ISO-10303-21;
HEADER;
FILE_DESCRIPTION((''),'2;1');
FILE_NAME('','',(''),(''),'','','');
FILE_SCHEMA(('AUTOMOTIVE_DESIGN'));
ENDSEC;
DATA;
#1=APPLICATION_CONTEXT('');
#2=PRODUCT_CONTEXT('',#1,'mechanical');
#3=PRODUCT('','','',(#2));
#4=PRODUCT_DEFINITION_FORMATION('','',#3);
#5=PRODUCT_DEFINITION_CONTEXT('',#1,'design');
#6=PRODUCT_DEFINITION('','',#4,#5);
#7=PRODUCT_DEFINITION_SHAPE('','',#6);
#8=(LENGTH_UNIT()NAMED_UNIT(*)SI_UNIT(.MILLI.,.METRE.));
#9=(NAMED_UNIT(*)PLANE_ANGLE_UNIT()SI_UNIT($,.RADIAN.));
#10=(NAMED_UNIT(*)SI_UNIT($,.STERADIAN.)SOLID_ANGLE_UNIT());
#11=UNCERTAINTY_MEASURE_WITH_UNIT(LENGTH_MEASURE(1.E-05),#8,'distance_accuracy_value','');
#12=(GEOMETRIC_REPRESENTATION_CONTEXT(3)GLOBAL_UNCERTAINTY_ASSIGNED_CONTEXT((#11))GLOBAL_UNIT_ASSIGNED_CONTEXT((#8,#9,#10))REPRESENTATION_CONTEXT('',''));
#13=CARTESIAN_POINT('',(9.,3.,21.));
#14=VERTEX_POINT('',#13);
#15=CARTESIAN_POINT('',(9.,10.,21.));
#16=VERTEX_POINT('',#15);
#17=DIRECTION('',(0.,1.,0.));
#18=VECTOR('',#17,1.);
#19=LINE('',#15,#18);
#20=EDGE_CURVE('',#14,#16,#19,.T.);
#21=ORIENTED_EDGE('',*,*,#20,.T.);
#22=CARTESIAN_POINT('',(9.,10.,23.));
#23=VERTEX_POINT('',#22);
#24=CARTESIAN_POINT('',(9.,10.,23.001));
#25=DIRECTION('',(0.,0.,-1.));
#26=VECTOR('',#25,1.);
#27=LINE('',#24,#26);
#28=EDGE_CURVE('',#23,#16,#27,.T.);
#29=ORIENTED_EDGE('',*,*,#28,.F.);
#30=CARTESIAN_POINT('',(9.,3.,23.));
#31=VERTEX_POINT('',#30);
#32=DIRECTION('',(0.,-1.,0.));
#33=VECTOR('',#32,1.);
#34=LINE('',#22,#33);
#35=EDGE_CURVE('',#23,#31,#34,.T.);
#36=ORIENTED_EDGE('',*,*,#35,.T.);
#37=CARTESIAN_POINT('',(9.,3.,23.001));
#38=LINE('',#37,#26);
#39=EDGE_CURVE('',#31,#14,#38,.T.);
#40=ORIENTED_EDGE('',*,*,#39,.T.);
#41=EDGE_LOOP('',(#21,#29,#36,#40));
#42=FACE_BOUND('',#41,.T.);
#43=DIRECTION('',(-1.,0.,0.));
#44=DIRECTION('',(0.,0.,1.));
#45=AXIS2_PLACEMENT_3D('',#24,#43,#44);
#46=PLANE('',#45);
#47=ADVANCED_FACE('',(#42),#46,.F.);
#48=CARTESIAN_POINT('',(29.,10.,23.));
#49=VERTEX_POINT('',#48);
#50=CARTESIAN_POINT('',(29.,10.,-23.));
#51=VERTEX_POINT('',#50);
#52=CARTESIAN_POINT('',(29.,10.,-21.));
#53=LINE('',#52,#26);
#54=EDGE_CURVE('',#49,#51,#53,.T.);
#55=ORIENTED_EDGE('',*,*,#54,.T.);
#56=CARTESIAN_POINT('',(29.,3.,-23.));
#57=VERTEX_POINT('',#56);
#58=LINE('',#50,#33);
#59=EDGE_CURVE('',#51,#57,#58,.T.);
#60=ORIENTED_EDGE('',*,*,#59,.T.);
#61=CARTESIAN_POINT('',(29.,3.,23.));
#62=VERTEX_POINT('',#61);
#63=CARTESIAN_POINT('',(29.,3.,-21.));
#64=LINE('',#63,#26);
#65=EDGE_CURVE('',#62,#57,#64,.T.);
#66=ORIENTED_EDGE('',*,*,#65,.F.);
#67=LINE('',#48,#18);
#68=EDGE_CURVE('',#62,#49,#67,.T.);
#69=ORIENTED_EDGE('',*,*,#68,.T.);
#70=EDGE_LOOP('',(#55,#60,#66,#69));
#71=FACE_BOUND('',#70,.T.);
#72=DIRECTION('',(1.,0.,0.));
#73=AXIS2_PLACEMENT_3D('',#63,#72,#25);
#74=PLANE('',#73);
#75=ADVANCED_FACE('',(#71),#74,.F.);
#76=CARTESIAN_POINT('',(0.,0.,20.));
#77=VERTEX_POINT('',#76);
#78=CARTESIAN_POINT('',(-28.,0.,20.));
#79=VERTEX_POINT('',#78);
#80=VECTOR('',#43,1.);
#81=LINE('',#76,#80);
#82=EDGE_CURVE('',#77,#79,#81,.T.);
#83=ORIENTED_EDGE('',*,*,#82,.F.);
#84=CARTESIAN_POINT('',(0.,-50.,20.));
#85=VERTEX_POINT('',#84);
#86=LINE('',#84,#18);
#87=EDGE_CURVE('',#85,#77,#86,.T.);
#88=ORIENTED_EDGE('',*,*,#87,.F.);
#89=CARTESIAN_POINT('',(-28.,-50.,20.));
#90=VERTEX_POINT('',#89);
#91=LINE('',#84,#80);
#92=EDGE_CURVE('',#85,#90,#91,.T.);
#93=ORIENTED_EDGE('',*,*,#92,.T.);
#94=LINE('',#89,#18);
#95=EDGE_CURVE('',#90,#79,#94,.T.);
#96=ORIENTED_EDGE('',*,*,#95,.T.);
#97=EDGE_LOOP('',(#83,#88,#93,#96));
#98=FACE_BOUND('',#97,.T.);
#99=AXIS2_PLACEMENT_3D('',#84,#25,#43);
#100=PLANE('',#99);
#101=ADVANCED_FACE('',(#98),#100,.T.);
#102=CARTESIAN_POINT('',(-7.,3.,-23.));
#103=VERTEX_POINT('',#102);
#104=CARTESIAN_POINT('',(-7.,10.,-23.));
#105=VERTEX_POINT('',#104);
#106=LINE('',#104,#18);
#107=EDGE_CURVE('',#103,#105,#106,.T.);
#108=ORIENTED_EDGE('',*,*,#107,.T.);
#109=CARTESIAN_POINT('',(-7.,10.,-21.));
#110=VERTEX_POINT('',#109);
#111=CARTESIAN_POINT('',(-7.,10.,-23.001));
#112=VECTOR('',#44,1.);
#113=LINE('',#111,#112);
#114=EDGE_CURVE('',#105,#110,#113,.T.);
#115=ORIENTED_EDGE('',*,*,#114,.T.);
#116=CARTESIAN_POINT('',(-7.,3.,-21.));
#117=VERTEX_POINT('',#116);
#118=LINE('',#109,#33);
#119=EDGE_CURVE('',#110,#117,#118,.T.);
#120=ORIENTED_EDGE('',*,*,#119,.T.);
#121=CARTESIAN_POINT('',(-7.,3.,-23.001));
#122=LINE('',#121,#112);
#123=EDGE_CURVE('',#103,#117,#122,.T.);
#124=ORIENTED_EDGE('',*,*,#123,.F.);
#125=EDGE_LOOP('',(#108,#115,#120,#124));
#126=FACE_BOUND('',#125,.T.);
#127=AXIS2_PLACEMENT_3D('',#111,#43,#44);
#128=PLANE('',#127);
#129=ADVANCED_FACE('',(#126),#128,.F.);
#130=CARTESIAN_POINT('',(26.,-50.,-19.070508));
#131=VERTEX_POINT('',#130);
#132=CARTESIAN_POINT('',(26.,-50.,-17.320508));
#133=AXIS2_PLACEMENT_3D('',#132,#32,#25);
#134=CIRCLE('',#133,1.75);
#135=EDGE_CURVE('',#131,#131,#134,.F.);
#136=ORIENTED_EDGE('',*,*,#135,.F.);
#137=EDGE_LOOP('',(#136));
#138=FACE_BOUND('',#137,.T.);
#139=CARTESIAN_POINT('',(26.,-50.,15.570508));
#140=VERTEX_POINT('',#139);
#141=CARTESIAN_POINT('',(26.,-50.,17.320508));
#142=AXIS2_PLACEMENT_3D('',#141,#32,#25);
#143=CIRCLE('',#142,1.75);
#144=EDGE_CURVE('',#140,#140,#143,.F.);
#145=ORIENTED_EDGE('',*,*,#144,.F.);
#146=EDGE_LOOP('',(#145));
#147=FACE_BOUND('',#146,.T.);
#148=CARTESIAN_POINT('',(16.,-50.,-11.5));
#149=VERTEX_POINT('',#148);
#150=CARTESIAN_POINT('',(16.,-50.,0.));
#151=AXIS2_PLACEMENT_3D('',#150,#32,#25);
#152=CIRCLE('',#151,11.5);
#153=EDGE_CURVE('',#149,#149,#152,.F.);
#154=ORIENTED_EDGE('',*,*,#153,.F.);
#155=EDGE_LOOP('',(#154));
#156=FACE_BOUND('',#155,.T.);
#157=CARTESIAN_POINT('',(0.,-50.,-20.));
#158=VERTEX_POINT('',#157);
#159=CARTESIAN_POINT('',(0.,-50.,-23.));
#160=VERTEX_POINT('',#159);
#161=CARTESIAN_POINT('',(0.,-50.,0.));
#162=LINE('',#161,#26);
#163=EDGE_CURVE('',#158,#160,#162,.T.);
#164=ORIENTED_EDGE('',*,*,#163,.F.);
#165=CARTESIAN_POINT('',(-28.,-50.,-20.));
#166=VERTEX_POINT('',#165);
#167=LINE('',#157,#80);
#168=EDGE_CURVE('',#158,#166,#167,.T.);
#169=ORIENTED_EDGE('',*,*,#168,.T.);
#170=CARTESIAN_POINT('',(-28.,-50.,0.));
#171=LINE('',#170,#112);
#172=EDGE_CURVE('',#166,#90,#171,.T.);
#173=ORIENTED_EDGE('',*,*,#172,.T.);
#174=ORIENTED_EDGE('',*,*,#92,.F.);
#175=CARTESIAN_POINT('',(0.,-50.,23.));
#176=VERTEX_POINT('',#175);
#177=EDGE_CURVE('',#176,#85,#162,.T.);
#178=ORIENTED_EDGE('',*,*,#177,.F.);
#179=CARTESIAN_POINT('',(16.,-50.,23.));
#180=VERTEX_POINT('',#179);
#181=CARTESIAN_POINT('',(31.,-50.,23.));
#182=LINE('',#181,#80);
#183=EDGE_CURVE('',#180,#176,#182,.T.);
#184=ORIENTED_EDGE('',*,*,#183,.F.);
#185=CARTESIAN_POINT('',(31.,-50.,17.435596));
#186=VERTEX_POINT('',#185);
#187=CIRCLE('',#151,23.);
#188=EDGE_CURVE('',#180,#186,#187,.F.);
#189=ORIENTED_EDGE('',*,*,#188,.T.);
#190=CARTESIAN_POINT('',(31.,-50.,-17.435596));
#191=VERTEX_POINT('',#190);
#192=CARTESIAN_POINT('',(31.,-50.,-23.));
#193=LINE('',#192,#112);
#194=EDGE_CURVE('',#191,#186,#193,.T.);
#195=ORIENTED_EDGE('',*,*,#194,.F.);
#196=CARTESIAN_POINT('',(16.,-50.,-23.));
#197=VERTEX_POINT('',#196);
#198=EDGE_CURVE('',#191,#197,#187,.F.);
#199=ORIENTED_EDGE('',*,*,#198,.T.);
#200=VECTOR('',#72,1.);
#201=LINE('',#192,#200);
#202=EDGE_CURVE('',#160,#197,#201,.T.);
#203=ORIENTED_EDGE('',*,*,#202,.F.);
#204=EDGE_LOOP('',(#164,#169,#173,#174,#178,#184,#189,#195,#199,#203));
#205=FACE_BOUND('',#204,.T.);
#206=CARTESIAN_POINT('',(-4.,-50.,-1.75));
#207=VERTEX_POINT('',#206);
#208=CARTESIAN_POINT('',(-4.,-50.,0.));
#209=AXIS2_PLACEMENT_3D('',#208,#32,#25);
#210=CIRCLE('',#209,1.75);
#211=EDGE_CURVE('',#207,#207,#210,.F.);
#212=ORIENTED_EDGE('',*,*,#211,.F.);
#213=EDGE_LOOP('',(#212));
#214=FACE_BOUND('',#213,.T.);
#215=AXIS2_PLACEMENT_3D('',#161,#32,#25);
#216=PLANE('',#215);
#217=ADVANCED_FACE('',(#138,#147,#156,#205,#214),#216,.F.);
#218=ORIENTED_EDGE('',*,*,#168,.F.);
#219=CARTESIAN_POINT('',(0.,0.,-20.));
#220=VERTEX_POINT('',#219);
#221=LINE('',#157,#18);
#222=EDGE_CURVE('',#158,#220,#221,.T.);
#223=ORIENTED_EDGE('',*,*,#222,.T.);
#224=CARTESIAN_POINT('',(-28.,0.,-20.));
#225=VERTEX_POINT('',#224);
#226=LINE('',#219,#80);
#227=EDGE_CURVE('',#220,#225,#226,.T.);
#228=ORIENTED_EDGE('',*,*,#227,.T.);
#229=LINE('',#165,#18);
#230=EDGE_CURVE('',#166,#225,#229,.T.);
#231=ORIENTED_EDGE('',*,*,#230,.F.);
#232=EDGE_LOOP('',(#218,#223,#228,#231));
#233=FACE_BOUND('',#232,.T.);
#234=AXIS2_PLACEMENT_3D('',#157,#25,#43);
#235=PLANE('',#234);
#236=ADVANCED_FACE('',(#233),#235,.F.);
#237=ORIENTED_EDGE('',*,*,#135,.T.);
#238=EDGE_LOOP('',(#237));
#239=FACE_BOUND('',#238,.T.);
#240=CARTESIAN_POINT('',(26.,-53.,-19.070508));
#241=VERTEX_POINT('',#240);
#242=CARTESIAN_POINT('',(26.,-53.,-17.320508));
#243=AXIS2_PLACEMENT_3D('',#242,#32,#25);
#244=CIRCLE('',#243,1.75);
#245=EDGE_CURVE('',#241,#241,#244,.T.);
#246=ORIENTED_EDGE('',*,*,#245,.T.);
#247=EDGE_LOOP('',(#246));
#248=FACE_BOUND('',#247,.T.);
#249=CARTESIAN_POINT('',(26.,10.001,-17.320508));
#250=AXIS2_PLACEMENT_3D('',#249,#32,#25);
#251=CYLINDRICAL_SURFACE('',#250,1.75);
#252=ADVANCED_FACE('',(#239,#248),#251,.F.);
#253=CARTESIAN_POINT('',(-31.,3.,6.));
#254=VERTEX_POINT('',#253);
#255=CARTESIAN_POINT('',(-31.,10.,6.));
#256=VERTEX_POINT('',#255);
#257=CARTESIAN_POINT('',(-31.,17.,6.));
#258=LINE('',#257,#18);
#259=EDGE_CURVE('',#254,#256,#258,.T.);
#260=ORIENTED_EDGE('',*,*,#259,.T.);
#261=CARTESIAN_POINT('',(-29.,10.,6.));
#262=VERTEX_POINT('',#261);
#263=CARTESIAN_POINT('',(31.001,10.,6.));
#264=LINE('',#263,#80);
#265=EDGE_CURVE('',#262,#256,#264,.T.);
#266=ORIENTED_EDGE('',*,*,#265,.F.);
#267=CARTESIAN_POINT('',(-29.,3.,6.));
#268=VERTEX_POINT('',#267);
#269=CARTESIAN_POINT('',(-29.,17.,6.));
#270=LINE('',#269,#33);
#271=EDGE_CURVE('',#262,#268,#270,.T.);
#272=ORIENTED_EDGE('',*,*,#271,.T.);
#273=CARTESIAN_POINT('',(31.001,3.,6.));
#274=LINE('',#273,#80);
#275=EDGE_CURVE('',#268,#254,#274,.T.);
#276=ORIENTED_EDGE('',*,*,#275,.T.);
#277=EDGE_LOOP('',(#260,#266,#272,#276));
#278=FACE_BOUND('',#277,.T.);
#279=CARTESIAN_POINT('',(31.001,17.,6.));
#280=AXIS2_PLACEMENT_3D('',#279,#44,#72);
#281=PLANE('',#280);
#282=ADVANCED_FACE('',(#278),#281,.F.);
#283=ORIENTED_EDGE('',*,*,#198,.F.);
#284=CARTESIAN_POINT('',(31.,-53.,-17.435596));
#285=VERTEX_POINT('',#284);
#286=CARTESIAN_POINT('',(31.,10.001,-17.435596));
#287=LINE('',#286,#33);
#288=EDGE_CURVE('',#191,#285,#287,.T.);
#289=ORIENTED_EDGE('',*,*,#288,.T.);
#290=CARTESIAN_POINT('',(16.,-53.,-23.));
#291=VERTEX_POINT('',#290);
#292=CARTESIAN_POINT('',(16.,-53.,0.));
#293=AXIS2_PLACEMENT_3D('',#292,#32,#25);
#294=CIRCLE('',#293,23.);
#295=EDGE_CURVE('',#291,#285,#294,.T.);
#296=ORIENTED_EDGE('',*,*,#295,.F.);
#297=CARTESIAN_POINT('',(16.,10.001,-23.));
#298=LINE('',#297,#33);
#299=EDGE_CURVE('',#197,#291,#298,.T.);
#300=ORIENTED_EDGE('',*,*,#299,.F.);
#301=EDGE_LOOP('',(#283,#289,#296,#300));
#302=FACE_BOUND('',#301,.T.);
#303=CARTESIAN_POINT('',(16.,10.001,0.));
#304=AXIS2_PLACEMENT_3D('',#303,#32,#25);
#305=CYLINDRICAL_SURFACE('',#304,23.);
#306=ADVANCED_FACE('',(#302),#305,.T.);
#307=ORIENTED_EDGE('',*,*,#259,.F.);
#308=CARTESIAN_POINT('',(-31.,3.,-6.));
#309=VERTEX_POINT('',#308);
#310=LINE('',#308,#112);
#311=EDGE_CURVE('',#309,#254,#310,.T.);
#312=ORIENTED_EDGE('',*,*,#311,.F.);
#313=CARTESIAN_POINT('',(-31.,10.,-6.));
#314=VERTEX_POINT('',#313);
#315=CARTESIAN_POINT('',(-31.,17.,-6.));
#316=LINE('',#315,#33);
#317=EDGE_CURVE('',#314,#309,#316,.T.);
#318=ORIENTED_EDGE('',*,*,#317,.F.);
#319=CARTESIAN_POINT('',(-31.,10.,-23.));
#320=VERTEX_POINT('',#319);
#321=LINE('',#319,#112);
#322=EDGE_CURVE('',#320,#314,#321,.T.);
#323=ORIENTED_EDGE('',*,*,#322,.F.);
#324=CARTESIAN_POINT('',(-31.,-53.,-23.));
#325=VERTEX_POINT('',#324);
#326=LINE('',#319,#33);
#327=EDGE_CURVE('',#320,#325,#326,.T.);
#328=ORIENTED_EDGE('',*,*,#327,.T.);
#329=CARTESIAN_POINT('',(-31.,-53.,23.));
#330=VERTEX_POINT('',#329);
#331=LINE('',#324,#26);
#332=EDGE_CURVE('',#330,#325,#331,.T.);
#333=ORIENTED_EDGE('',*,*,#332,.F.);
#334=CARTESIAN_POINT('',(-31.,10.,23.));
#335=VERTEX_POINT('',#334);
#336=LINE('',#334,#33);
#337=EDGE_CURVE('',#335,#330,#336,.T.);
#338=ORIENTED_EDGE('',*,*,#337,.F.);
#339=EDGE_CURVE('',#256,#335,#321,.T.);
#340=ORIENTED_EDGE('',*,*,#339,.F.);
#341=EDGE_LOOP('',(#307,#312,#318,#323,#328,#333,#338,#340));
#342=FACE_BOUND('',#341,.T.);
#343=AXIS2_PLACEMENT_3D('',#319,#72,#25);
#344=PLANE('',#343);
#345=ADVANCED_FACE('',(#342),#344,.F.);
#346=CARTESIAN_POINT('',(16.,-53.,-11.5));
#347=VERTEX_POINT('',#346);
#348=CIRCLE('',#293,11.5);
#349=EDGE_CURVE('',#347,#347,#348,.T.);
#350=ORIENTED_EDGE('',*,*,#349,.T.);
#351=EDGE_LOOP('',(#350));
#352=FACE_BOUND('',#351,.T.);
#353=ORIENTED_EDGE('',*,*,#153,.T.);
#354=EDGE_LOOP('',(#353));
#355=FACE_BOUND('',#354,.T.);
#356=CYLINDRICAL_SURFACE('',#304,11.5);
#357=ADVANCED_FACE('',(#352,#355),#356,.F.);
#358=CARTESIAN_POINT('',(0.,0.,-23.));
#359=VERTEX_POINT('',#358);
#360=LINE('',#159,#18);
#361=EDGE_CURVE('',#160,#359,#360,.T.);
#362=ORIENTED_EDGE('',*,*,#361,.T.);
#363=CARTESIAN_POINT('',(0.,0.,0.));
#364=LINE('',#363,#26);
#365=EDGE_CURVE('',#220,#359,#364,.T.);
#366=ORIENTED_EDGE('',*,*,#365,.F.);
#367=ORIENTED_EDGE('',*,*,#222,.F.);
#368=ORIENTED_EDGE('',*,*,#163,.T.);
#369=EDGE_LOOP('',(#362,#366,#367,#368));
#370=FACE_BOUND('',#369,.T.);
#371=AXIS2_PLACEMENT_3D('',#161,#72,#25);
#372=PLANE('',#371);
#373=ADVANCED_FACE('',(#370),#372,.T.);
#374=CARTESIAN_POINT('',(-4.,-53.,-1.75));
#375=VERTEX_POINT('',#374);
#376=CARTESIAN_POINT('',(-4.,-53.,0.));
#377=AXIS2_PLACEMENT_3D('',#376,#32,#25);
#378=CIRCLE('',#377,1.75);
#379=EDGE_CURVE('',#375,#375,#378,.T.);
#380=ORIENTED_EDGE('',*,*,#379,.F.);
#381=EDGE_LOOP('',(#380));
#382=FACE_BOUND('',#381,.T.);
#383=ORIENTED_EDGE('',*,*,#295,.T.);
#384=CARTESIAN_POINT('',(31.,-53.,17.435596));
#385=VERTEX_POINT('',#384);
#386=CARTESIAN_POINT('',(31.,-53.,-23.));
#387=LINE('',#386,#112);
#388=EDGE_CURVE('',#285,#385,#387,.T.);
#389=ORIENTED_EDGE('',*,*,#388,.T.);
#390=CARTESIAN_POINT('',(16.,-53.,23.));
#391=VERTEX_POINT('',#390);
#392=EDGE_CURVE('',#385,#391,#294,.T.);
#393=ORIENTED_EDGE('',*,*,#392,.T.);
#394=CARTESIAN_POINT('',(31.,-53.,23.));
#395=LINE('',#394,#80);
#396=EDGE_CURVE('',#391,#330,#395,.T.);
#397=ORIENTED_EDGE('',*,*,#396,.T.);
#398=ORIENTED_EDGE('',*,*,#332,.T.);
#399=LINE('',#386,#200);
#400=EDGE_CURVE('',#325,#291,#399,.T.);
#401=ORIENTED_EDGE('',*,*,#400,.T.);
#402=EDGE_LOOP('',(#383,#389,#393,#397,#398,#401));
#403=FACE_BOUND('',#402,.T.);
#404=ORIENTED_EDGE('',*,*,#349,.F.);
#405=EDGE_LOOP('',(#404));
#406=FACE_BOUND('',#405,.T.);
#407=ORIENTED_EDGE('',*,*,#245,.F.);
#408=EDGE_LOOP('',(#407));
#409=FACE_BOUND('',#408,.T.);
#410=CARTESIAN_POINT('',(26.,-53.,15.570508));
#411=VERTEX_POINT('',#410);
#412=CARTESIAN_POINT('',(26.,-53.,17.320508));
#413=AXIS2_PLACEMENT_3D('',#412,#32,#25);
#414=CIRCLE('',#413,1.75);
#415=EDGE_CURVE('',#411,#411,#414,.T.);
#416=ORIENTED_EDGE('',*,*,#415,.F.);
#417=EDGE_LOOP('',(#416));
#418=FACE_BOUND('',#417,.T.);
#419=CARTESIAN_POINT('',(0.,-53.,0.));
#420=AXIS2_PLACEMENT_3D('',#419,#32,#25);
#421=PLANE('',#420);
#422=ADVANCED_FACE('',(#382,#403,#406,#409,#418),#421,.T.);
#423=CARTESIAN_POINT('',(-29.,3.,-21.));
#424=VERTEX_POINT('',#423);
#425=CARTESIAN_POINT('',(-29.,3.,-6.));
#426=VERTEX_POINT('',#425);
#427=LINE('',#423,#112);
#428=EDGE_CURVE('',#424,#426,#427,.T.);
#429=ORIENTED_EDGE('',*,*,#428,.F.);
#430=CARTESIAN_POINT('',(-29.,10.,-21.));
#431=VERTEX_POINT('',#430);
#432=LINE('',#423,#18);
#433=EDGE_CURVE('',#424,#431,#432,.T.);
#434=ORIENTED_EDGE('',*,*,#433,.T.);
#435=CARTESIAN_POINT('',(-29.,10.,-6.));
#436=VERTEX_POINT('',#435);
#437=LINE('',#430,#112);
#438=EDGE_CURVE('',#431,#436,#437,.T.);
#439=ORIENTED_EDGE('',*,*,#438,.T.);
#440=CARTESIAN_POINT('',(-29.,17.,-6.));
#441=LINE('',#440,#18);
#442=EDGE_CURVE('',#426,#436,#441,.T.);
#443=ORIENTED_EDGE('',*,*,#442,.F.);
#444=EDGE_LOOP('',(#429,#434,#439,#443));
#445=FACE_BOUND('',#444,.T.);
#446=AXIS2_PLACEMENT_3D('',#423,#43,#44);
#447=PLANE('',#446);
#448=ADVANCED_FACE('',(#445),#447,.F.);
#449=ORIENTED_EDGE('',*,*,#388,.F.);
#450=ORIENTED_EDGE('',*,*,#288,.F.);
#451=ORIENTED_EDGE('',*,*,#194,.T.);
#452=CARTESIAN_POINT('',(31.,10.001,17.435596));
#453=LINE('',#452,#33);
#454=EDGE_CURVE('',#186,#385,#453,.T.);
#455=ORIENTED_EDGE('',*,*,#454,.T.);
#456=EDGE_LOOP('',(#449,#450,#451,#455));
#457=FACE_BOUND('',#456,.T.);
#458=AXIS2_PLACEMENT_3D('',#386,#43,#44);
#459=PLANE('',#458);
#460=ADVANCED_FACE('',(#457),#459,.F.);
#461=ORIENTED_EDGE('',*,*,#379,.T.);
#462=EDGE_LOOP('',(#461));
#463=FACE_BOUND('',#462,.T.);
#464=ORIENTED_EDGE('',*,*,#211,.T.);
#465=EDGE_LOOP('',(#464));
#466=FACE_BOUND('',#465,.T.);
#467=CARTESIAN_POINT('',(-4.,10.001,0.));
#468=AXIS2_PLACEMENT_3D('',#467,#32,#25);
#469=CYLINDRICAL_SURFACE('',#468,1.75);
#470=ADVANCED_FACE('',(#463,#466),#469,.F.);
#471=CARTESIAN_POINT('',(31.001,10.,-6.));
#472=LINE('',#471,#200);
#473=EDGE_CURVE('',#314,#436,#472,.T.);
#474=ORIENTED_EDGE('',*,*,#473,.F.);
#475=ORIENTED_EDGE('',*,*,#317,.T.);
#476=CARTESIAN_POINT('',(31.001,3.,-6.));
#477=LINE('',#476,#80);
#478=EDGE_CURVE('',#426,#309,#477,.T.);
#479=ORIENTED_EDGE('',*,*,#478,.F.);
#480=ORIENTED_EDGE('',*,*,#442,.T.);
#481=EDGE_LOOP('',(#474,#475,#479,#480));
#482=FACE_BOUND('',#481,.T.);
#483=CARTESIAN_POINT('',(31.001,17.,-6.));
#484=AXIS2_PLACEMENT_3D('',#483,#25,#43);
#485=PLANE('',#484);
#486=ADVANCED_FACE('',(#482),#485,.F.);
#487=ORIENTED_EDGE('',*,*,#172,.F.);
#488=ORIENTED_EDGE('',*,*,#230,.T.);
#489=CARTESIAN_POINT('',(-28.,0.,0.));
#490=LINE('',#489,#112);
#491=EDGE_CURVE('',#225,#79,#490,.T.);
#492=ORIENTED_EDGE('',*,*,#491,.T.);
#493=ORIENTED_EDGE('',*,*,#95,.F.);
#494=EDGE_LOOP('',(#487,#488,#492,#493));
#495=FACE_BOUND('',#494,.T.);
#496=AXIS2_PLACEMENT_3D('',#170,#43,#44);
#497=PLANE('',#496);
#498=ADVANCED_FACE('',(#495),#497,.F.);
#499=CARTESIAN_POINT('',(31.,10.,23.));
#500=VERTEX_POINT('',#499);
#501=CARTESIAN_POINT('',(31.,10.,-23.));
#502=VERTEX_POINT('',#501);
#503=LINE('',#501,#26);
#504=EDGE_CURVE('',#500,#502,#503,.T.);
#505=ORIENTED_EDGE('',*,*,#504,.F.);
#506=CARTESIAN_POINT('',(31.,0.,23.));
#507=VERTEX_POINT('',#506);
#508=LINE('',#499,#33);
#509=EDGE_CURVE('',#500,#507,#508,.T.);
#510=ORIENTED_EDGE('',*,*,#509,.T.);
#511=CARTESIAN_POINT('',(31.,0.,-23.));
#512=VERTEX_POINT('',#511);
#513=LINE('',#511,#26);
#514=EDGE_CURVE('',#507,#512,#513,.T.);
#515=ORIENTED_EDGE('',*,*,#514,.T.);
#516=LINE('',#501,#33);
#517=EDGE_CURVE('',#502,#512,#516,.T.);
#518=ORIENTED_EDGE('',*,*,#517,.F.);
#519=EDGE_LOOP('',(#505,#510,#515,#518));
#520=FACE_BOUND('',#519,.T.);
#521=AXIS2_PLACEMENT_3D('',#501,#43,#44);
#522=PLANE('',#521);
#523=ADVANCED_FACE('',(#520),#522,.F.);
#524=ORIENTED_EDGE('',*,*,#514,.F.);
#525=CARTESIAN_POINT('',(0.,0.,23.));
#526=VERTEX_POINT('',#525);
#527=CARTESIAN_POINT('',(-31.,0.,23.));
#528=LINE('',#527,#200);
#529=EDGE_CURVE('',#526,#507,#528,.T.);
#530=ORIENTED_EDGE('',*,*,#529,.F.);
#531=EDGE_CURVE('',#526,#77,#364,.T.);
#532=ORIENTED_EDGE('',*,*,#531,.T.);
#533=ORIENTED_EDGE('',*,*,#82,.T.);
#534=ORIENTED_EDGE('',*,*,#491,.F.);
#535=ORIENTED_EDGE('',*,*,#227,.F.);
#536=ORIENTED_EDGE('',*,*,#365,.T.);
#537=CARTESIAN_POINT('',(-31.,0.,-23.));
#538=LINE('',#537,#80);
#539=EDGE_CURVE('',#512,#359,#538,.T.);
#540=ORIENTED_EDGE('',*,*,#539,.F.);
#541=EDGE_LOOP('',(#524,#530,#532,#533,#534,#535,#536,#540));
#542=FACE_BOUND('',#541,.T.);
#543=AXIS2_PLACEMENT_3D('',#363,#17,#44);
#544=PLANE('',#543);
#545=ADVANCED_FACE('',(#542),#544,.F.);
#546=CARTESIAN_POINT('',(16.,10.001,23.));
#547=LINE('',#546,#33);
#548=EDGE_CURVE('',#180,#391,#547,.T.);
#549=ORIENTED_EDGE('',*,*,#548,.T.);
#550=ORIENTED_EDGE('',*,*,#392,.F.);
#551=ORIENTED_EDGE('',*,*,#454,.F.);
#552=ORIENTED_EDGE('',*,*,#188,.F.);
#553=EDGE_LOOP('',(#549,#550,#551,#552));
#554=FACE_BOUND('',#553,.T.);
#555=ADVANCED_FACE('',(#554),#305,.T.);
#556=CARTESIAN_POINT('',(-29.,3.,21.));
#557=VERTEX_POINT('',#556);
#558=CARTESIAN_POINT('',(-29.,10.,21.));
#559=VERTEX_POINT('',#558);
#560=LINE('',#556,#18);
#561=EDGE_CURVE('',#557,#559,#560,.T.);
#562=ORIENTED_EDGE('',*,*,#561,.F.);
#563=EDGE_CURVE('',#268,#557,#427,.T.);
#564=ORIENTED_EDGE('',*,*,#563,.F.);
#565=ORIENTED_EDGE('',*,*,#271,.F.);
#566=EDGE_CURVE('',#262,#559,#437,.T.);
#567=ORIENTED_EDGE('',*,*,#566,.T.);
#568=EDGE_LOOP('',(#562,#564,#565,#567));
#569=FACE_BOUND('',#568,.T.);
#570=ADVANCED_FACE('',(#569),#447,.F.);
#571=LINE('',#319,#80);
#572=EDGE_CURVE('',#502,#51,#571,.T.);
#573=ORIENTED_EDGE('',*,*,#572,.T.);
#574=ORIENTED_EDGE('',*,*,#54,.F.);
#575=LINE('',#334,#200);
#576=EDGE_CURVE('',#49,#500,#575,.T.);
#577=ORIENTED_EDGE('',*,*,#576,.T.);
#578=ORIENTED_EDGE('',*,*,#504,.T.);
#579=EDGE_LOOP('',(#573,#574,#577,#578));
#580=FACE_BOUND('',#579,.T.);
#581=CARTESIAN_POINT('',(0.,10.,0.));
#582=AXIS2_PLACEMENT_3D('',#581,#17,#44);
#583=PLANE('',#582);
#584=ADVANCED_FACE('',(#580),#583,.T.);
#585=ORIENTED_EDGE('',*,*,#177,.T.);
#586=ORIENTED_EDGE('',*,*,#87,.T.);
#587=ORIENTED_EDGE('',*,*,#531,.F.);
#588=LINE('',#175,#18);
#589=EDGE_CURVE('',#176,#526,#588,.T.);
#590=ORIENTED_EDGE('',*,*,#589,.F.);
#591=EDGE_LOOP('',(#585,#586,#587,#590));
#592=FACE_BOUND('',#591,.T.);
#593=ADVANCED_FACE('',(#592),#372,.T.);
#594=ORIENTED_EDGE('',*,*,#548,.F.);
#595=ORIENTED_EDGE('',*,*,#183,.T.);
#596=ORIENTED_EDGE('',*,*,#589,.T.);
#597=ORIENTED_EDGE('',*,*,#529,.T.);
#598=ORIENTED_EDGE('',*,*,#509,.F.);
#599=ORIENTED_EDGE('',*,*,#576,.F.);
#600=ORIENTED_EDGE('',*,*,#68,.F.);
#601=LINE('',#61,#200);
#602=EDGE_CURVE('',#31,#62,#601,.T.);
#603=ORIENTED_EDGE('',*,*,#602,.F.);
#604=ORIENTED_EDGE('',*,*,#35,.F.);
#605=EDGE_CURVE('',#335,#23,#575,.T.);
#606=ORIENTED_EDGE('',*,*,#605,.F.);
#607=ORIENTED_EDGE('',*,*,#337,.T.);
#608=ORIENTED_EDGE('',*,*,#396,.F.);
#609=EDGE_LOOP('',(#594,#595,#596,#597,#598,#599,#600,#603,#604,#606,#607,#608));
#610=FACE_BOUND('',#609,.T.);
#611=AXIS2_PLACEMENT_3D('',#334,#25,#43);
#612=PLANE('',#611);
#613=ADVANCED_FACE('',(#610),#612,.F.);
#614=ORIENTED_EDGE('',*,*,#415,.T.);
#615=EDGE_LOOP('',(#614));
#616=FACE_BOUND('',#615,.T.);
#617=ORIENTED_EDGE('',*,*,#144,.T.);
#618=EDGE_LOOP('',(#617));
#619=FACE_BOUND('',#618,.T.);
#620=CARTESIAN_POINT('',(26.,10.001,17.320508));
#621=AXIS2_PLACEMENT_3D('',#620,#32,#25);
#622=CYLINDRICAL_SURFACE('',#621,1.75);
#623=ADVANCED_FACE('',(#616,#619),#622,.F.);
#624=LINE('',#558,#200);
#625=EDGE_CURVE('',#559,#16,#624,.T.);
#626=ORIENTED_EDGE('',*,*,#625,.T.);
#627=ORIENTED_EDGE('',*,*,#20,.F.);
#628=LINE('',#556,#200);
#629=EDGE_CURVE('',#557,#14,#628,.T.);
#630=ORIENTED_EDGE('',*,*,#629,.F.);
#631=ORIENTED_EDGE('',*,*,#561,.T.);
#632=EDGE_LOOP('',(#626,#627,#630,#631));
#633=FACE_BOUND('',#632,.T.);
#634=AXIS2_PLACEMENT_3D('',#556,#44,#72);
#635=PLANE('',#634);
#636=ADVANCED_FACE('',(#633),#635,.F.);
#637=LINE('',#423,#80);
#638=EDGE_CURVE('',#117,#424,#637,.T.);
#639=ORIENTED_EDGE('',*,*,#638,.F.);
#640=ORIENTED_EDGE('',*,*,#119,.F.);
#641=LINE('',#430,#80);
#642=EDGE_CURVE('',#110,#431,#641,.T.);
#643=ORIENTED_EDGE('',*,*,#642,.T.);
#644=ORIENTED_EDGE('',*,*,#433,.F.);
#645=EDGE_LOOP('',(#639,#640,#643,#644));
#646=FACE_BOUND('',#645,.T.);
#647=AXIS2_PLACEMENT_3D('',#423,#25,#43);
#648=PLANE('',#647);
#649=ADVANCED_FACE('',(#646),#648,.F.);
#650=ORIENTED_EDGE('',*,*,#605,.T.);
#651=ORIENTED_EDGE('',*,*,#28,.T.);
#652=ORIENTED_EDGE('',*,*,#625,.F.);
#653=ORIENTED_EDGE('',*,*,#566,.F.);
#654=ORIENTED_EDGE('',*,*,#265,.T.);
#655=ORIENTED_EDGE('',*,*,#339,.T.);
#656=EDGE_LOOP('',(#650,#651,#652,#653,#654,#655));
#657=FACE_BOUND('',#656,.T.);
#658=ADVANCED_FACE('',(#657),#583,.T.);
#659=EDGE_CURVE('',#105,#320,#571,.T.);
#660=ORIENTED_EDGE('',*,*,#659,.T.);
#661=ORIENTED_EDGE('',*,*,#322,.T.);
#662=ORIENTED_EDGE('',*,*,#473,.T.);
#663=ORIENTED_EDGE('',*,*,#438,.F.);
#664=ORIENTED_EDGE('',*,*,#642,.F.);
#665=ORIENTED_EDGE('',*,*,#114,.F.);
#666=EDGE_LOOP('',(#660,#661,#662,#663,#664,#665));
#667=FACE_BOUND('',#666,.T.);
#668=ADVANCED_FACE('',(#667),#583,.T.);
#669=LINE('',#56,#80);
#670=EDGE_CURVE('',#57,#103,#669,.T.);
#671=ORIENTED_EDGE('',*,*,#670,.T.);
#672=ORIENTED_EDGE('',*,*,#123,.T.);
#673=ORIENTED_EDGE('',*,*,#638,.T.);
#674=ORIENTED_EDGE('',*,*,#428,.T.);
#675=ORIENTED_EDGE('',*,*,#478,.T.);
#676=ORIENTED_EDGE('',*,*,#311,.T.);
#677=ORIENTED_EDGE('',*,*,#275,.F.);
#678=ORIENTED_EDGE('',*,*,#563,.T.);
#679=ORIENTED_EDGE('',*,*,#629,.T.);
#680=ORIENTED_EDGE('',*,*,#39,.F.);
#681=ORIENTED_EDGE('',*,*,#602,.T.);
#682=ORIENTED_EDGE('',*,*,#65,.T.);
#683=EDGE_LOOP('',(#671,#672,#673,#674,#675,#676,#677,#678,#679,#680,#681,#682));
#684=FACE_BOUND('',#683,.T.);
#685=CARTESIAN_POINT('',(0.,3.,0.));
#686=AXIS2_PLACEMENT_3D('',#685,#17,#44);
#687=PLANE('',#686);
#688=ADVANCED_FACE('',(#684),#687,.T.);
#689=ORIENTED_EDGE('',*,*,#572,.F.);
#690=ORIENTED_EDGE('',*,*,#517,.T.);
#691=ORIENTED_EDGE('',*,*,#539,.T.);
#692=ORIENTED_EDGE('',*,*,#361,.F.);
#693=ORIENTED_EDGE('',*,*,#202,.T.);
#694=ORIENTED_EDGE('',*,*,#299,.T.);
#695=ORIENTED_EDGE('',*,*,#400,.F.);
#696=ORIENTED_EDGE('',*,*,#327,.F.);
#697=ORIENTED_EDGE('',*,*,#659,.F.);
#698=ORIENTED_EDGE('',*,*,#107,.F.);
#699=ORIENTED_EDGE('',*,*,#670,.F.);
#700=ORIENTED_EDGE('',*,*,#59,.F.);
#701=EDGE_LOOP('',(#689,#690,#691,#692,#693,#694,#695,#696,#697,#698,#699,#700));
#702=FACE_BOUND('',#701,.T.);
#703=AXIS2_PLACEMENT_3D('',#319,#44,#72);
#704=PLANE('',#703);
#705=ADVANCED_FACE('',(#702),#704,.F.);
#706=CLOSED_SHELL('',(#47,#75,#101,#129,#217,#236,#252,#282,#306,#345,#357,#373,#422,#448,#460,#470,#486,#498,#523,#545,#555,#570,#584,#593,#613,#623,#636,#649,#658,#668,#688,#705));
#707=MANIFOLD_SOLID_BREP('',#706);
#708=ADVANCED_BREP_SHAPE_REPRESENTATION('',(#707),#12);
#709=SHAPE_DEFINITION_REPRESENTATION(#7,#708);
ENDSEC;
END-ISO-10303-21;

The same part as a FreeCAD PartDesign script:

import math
import FreeCAD as App
import Part
import Sketcher
Q = App.Units.Quantity

doc = App.newDocument("Part")
body = doc.addObject("PartDesign::Body", "Body")

# Sketch on XZ plane
sketch1 = body.newObject("Sketcher::SketchObject", "Sketch")
sketch1.AttachmentSupport = (doc.getObject("XZ_Plane"), [""])
sketch1.MapMode = "FlatFace"
sketch1.addGeometry(Part.LineSegment(App.Vector(-31, -23, 0), App.Vector(-31, 23, 0)), False)
sketch1.addGeometry(Part.LineSegment(App.Vector(-31, 23, 0), App.Vector(31, 23, 0)), False)
sketch1.addGeometry(Part.LineSegment(App.Vector(31, 23, 0), App.Vector(31, -23, 0)), False)
sketch1.addGeometry(Part.LineSegment(App.Vector(31, -23, 0), App.Vector(-31, -23, 0)), False)
sketch1.addConstraint(Sketcher.Constraint("Coincident", 0, 2, 1, 1))
sketch1.addConstraint(Sketcher.Constraint("Coincident", 1, 2, 2, 1))
sketch1.addConstraint(Sketcher.Constraint("Coincident", 2, 2, 3, 1))
sketch1.addConstraint(Sketcher.Constraint("Coincident", 3, 2, 0, 1))
sketch1.addConstraint(Sketcher.Constraint("Vertical", 0))
sketch1.addConstraint(Sketcher.Constraint("Horizontal", 1))
sketch1.addConstraint(Sketcher.Constraint("Vertical", 2))
sketch1.addConstraint(Sketcher.Constraint("Horizontal", 3))
sketch1.addConstraint(Sketcher.Constraint("Symmetric", 0, 2, 2, 2, -1, 1))
sketch1.addConstraint(Sketcher.Constraint("DistanceX", 1, 1, 1, 2, Q("62 mm")))
sketch1.addConstraint(Sketcher.Constraint("DistanceY", 0, 1, 0, 2, Q("46 mm")))
pad1 = body.newObject("PartDesign::Pad", "Pad")
pad1.Profile = sketch1
pad1.Length = 10
pad1.Reversed = True

# Sketch on XZ plane
sketch2 = body.newObject("Sketcher::SketchObject", "Sketch001")
sketch2.AttachmentSupport = (doc.getObject("XZ_Plane"), [""])
sketch2.MapMode = "FlatFace"
sketch2.AttachmentOffset = App.Placement(App.Vector(0, 0, -10), App.Rotation())
sketch2.addGeometry(Part.LineSegment(App.Vector(-29, -21, 0), App.Vector(-29, 21, 0)), False)
sketch2.addGeometry(Part.LineSegment(App.Vector(-29, 21, 0), App.Vector(29, 21, 0)), False)
sketch2.addGeometry(Part.LineSegment(App.Vector(29, 21, 0), App.Vector(29, -21, 0)), False)
sketch2.addGeometry(Part.LineSegment(App.Vector(29, -21, 0), App.Vector(-29, -21, 0)), False)
sketch2.addConstraint(Sketcher.Constraint("Coincident", 0, 2, 1, 1))
sketch2.addConstraint(Sketcher.Constraint("Coincident", 1, 2, 2, 1))
sketch2.addConstraint(Sketcher.Constraint("Coincident", 2, 2, 3, 1))
sketch2.addConstraint(Sketcher.Constraint("Coincident", 3, 2, 0, 1))
sketch2.addConstraint(Sketcher.Constraint("Vertical", 0))
sketch2.addConstraint(Sketcher.Constraint("Horizontal", 1))
sketch2.addConstraint(Sketcher.Constraint("Vertical", 2))
sketch2.addConstraint(Sketcher.Constraint("Horizontal", 3))
sketch2.addConstraint(Sketcher.Constraint("Symmetric", 0, 2, 2, 2, -1, 1))
sketch2.addConstraint(Sketcher.Constraint("DistanceX", 1, 1, 1, 2, Q("58 mm")))
sketch2.addConstraint(Sketcher.Constraint("DistanceY", 0, 1, 0, 2, Q("42 mm")))
pocket1 = body.newObject("PartDesign::Pocket", "Pocket")
pocket1.Profile = sketch2
pocket1.Length = 7
pocket1.Reversed = True

# Sketch on YZ plane
sketch3 = body.newObject("Sketcher::SketchObject", "Sketch002")
sketch3.AttachmentSupport = (doc.getObject("YZ_Plane"), [""])
sketch3.MapMode = "FlatFace"
sketch3.AttachmentOffset = App.Placement(App.Vector(0, 0, -31), App.Rotation())
sketch3.addGeometry(Part.LineSegment(App.Vector(17, -6, 0), App.Vector(3, -6, 0)), False)
sketch3.addGeometry(Part.LineSegment(App.Vector(3, -6, 0), App.Vector(3, 6, 0)), False)
sketch3.addGeometry(Part.LineSegment(App.Vector(3, 6, 0), App.Vector(17, 6, 0)), False)
sketch3.addGeometry(Part.LineSegment(App.Vector(17, 6, 0), App.Vector(17, -6, 0)), False)
sketch3.addConstraint(Sketcher.Constraint("Coincident", 0, 2, 1, 1))
sketch3.addConstraint(Sketcher.Constraint("Coincident", 1, 2, 2, 1))
sketch3.addConstraint(Sketcher.Constraint("Coincident", 2, 2, 3, 1))
sketch3.addConstraint(Sketcher.Constraint("Coincident", 3, 2, 0, 1))
sketch3.addConstraint(Sketcher.Constraint("Horizontal", 0))
sketch3.addConstraint(Sketcher.Constraint("Vertical", 1))
sketch3.addConstraint(Sketcher.Constraint("Horizontal", 2))
sketch3.addConstraint(Sketcher.Constraint("Vertical", 3))
sketch3.addConstraint(Sketcher.Constraint("DistanceX", 0, 2, 0, 1, Q("14 mm")))
sketch3.addConstraint(Sketcher.Constraint("DistanceY", 1, 1, 1, 2, Q("12 mm")))
sketch3.addConstraint(Sketcher.Constraint("DistanceX", -1, 1, 0, 2, Q("3 mm")))
sketch3.addConstraint(Sketcher.Constraint("DistanceY", 0, 2, -1, 1, Q("6 mm")))
pocket2 = body.newObject("PartDesign::Pocket", "Pocket001")
pocket2.Profile = sketch3
pocket2.Type = "UpToFirst"
pocket2.Reversed = True

# Sketch on XY plane
sketch4 = body.newObject("Sketcher::SketchObject", "Sketch003")
sketch4.AttachmentSupport = (doc.getObject("XY_Plane"), [""])
sketch4.MapMode = "FlatFace"
sketch4.AttachmentOffset = App.Placement(App.Vector(0, 0, -21), App.Rotation())
sketch4.addGeometry(Part.LineSegment(App.Vector(-7, 10, 0), App.Vector(-7, 3, 0)), False)
sketch4.addGeometry(Part.LineSegment(App.Vector(-7, 3, 0), App.Vector(29, 3, 0)), False)
sketch4.addGeometry(Part.LineSegment(App.Vector(29, 3, 0), App.Vector(29, 10, 0)), False)
sketch4.addGeometry(Part.LineSegment(App.Vector(29, 10, 0), App.Vector(-7, 10, 0)), False)
sketch4.addConstraint(Sketcher.Constraint("Coincident", 0, 2, 1, 1))
sketch4.addConstraint(Sketcher.Constraint("Coincident", 1, 2, 2, 1))
sketch4.addConstraint(Sketcher.Constraint("Coincident", 2, 2, 3, 1))
sketch4.addConstraint(Sketcher.Constraint("Coincident", 3, 2, 0, 1))
sketch4.addConstraint(Sketcher.Constraint("Vertical", 0))
sketch4.addConstraint(Sketcher.Constraint("Horizontal", 1))
sketch4.addConstraint(Sketcher.Constraint("Vertical", 2))
sketch4.addConstraint(Sketcher.Constraint("Horizontal", 3))
sketch4.addConstraint(Sketcher.Constraint("DistanceX", 1, 1, 1, 2, Q("36 mm")))
sketch4.addConstraint(Sketcher.Constraint("DistanceY", 0, 2, 0, 1, Q("7 mm")))
sketch4.addConstraint(Sketcher.Constraint("DistanceX", 0, 2, -1, 1, Q("7 mm")))
sketch4.addConstraint(Sketcher.Constraint("DistanceY", -1, 1, 0, 2, Q("3 mm")))
pocket3 = body.newObject("PartDesign::Pocket", "Pocket002")
pocket3.Profile = sketch4
pocket3.Type = "UpToFirst"

# Sketch on XY plane
sketch5 = body.newObject("Sketcher::SketchObject", "Sketch004")
sketch5.AttachmentSupport = (doc.getObject("XY_Plane"), [""])
sketch5.MapMode = "FlatFace"
sketch5.AttachmentOffset = App.Placement(App.Vector(0, 0, 21), App.Rotation())
sketch5.addGeometry(Part.LineSegment(App.Vector(29, 10, 0), App.Vector(29, 3, 0)), False)
sketch5.addGeometry(Part.LineSegment(App.Vector(29, 3, 0), App.Vector(9, 3, 0)), False)
sketch5.addGeometry(Part.LineSegment(App.Vector(9, 3, 0), App.Vector(9, 10, 0)), False)
sketch5.addGeometry(Part.LineSegment(App.Vector(9, 10, 0), App.Vector(29, 10, 0)), False)
sketch5.addConstraint(Sketcher.Constraint("Coincident", 0, 2, 1, 1))
sketch5.addConstraint(Sketcher.Constraint("Coincident", 1, 2, 2, 1))
sketch5.addConstraint(Sketcher.Constraint("Coincident", 2, 2, 3, 1))
sketch5.addConstraint(Sketcher.Constraint("Coincident", 3, 2, 0, 1))
sketch5.addConstraint(Sketcher.Constraint("Vertical", 0))
sketch5.addConstraint(Sketcher.Constraint("Horizontal", 1))
sketch5.addConstraint(Sketcher.Constraint("Vertical", 2))
sketch5.addConstraint(Sketcher.Constraint("Horizontal", 3))
sketch5.addConstraint(Sketcher.Constraint("DistanceX", 1, 2, 1, 1, Q("20 mm")))
sketch5.addConstraint(Sketcher.Constraint("DistanceY", 0, 2, 0, 1, Q("7 mm")))
sketch5.addConstraint(Sketcher.Constraint("DistanceX", -1, 1, 0, 2, Q("29 mm")))
sketch5.addConstraint(Sketcher.Constraint("DistanceY", -1, 1, 0, 2, Q("3 mm")))
pocket4 = body.newObject("PartDesign::Pocket", "Pocket003")
pocket4.Profile = sketch5
pocket4.Type = "UpToFirst"
pocket4.Reversed = True

# Sketch on XZ plane
sketch6 = body.newObject("Sketcher::SketchObject", "Sketch005")
sketch6.AttachmentSupport = (doc.getObject("XZ_Plane"), [""])
sketch6.MapMode = "FlatFace"
sketch6.addGeometry(Part.LineSegment(App.Vector(0, -23, 0), App.Vector(0, -20, 0)), False)
sketch6.addGeometry(Part.LineSegment(App.Vector(0, -20, 0), App.Vector(-28, -20, 0)), False)
sketch6.addGeometry(Part.LineSegment(App.Vector(-28, -20, 0), App.Vector(-28, 20, 0)), False)
sketch6.addGeometry(Part.LineSegment(App.Vector(-28, 20, 0), App.Vector(0, 20, 0)), False)
sketch6.addGeometry(Part.LineSegment(App.Vector(0, 20, 0), App.Vector(0, 23, 0)), False)
sketch6.addGeometry(Part.LineSegment(App.Vector(0, 23, 0), App.Vector(-31, 23, 0)), False)
sketch6.addGeometry(Part.LineSegment(App.Vector(-31, 23, 0), App.Vector(-31, -23, 0)), False)
sketch6.addGeometry(Part.LineSegment(App.Vector(-31, -23, 0), App.Vector(0, -23, 0)), False)
sketch6.addConstraint(Sketcher.Constraint("Coincident", 0, 2, 1, 1))
sketch6.addConstraint(Sketcher.Constraint("Coincident", 1, 2, 2, 1))
sketch6.addConstraint(Sketcher.Constraint("Coincident", 2, 2, 3, 1))
sketch6.addConstraint(Sketcher.Constraint("Coincident", 3, 2, 4, 1))
sketch6.addConstraint(Sketcher.Constraint("Coincident", 4, 2, 5, 1))
sketch6.addConstraint(Sketcher.Constraint("Coincident", 5, 2, 6, 1))
sketch6.addConstraint(Sketcher.Constraint("Coincident", 6, 2, 7, 1))
sketch6.addConstraint(Sketcher.Constraint("Coincident", 7, 2, 0, 1))
sketch6.addConstraint(Sketcher.Constraint("Vertical", 0))
sketch6.addConstraint(Sketcher.Constraint("Horizontal", 1))
sketch6.addConstraint(Sketcher.Constraint("Vertical", 2))
sketch6.addConstraint(Sketcher.Constraint("Horizontal", 3))
sketch6.addConstraint(Sketcher.Constraint("Vertical", 4))
sketch6.addConstraint(Sketcher.Constraint("Horizontal", 5))
sketch6.addConstraint(Sketcher.Constraint("Vertical", 6))
sketch6.addConstraint(Sketcher.Constraint("Horizontal", 7))
sketch6.addConstraint(Sketcher.Constraint("Symmetric", 0, 2, 3, 2, -1, 1))
sketch6.addConstraint(Sketcher.Constraint("Symmetric", 4, 2, 7, 2, -1))
sketch6.addConstraint(Sketcher.Constraint("DistanceX", 1, 2, 1, 1, Q("28 mm")))
sketch6.addConstraint(Sketcher.Constraint("DistanceX", 5, 2, 5, 1, Q("31 mm")))
sketch6.addConstraint(Sketcher.Constraint("DistanceY", 0, 1, 0, 2, Q("3 mm")))
sketch6.addConstraint(Sketcher.Constraint("DistanceY", 2, 1, 2, 2, Q("40 mm")))
pad2 = body.newObject("PartDesign::Pad", "Pad001")
pad2.Profile = sketch6
pad2.Length = 50

# Sketch on XZ plane
sketch7 = body.newObject("Sketcher::SketchObject", "Sketch006")
sketch7.AttachmentSupport = (doc.getObject("XZ_Plane"), [""])
sketch7.MapMode = "FlatFace"
sketch7.AttachmentOffset = App.Placement(App.Vector(0, 0, 50), App.Rotation())
sketch7.addGeometry(Part.LineSegment(App.Vector(-31, 23, 0), App.Vector(-31, -23, 0)), False)
sketch7.addGeometry(Part.LineSegment(App.Vector(-31, -23, 0), App.Vector(31, -23, 0)), False)
sketch7.addGeometry(Part.LineSegment(App.Vector(31, -23, 0), App.Vector(31, 23, 0)), False)
sketch7.addGeometry(Part.LineSegment(App.Vector(31, 23, 0), App.Vector(-31, 23, 0)), False)
sketch7.addConstraint(Sketcher.Constraint("Coincident", 0, 2, 1, 1))
sketch7.addConstraint(Sketcher.Constraint("Coincident", 1, 2, 2, 1))
sketch7.addConstraint(Sketcher.Constraint("Coincident", 2, 2, 3, 1))
sketch7.addConstraint(Sketcher.Constraint("Coincident", 3, 2, 0, 1))
sketch7.addConstraint(Sketcher.Constraint("Vertical", 0))
sketch7.addConstraint(Sketcher.Constraint("Horizontal", 1))
sketch7.addConstraint(Sketcher.Constraint("Vertical", 2))
sketch7.addConstraint(Sketcher.Constraint("Horizontal", 3))
sketch7.addConstraint(Sketcher.Constraint("Symmetric", 0, 2, 2, 2, -1, 1))
sketch7.addConstraint(Sketcher.Constraint("DistanceX", 1, 1, 1, 2, Q("62 mm")))
sketch7.addConstraint(Sketcher.Constraint("DistanceY", 0, 2, 0, 1, Q("46 mm")))
pad3 = body.newObject("PartDesign::Pad", "Pad002")
pad3.Profile = sketch7
pad3.Length = 3

# Sketch on XZ plane
sketch8 = body.newObject("Sketcher::SketchObject", "Sketch007")
sketch8.AttachmentSupport = (doc.getObject("XZ_Plane"), [""])
sketch8.MapMode = "FlatFace"
sketch8.AttachmentOffset = App.Placement(App.Vector(0, 0, 53), App.Rotation())
sketch8.addGeometry(Part.LineSegment(App.Vector(31, 17, 0), App.Vector(31, 23, 0)), False)
sketch8.addGeometry(Part.LineSegment(App.Vector(31, 23, 0), App.Vector(16, 23, 0)), False)
sketch8.addGeometry(Part.ArcOfCircle(Part.Circle(App.Vector(16, 0, 0), App.Vector(0, 0, 1), 23), math.radians(49), math.radians(90)), False)
sketch8.addConstraint(Sketcher.Constraint("Coincident", 0, 2, 1, 1))
sketch8.addConstraint(Sketcher.Constraint("Tangent", 1, 2, 2, 2))
sketch8.addConstraint(Sketcher.Constraint("Coincident", 2, 1, 0, 1))
sketch8.addConstraint(Sketcher.Constraint("Vertical", 0))
sketch8.addConstraint(Sketcher.Constraint("Horizontal", 1))
sketch8.addConstraint(Sketcher.Constraint("PointOnObject", 2, 3, -1))
sketch8.addConstraint(Sketcher.Constraint("Radius", 2, Q("23 mm")))
sketch8.addConstraint(Sketcher.Constraint("DistanceX", 1, 2, 1, 1, Q("15 mm")))
sketch8.addConstraint(Sketcher.Constraint("DistanceX", -1, 1, 2, 3, Q("16 mm")))
pocket5 = body.newObject("PartDesign::Pocket", "Pocket004")
pocket5.Profile = sketch8
pocket5.Type = "UpToFirst"

# Sketch on XZ plane
sketch9 = body.newObject("Sketcher::SketchObject", "Sketch008")
sketch9.AttachmentSupport = (doc.getObject("XZ_Plane"), [""])
sketch9.MapMode = "FlatFace"
sketch9.AttachmentOffset = App.Placement(App.Vector(0, 0, 53), App.Rotation())
sketch9.addGeometry(Part.ArcOfCircle(Part.Circle(App.Vector(16, 0, 0), App.Vector(0, 0, 1), 23), math.radians(-90), math.radians(-49)), False)
sketch9.addGeometry(Part.LineSegment(App.Vector(16, -23, 0), App.Vector(31, -23, 0)), False)
sketch9.addGeometry(Part.LineSegment(App.Vector(31, -23, 0), App.Vector(31, -17, 0)), False)
sketch9.addConstraint(Sketcher.Constraint("Tangent", 0, 1, 1, 1))
sketch9.addConstraint(Sketcher.Constraint("Coincident", 1, 2, 2, 1))
sketch9.addConstraint(Sketcher.Constraint("Coincident", 2, 2, 0, 2))
sketch9.addConstraint(Sketcher.Constraint("Horizontal", 1))
sketch9.addConstraint(Sketcher.Constraint("Vertical", 2))
sketch9.addConstraint(Sketcher.Constraint("PointOnObject", 0, 3, -1))
sketch9.addConstraint(Sketcher.Constraint("Radius", 0, Q("23 mm")))
sketch9.addConstraint(Sketcher.Constraint("DistanceX", 1, 1, 1, 2, Q("15 mm")))
sketch9.addConstraint(Sketcher.Constraint("DistanceX", -1, 1, 0, 3, Q("16 mm")))
pocket6 = body.newObject("PartDesign::Pocket", "Pocket005")
pocket6.Profile = sketch9
pocket6.Type = "UpToFirst"

# Sketch on XZ plane
sketch10 = body.newObject("Sketcher::SketchObject", "Sketch009")
sketch10.AttachmentSupport = (doc.getObject("XZ_Plane"), [""])
sketch10.MapMode = "FlatFace"
sketch10.AttachmentOffset = App.Placement(App.Vector(0, 0, 53), App.Rotation())
sketch10.addGeometry(Part.Circle(App.Vector(26, -17.3, 0), App.Vector(0, 0, 1), 1.8), False)
sketch10.addConstraint(Sketcher.Constraint("Diameter", 0, Q("3.5 mm")))
sketch10.addConstraint(Sketcher.Constraint("DistanceX", -1, 1, 0, 3, Q("26 mm")))
sketch10.addConstraint(Sketcher.Constraint("DistanceY", 0, 3, -1, 1, Q("17.320508 mm")))
pocket7 = body.newObject("PartDesign::Pocket", "Pocket006")
pocket7.Profile = sketch10
pocket7.Type = "UpToFirst"

# Sketch on XZ plane
sketch11 = body.newObject("Sketcher::SketchObject", "Sketch010")
sketch11.AttachmentSupport = (doc.getObject("XZ_Plane"), [""])
sketch11.MapMode = "FlatFace"
sketch11.AttachmentOffset = App.Placement(App.Vector(0, 0, 53), App.Rotation())
sketch11.addGeometry(Part.Circle(App.Vector(26, 17.3, 0), App.Vector(0, 0, 1), 1.8), False)
sketch11.addConstraint(Sketcher.Constraint("Diameter", 0, Q("3.5 mm")))
sketch11.addConstraint(Sketcher.Constraint("DistanceX", -1, 1, 0, 3, Q("26 mm")))
sketch11.addConstraint(Sketcher.Constraint("DistanceY", -1, 1, 0, 3, Q("17.320508 mm")))
pocket8 = body.newObject("PartDesign::Pocket", "Pocket007")
pocket8.Profile = sketch11
pocket8.Type = "UpToFirst"

# Sketch on XZ plane
sketch12 = body.newObject("Sketcher::SketchObject", "Sketch011")
sketch12.AttachmentSupport = (doc.getObject("XZ_Plane"), [""])
sketch12.MapMode = "FlatFace"
sketch12.AttachmentOffset = App.Placement(App.Vector(0, 0, 53), App.Rotation())
sketch12.addGeometry(Part.ArcOfCircle(Part.Circle(App.Vector(16, 0, 0), App.Vector(0, 0, 1), 11), math.radians(0), math.radians(90)), False)
sketch12.addGeometry(Part.LineSegment(App.Vector(16, 12, 0), App.Vector(16, -12, 0)), False)
sketch12.addGeometry(Part.ArcOfCircle(Part.Circle(App.Vector(16, 0, 0), App.Vector(0, 0, 1), 11), math.radians(-90), math.radians(0)), False)
sketch12.addConstraint(Sketcher.Constraint("Coincident", 0, 2, 1, 1))
sketch12.addConstraint(Sketcher.Constraint("Coincident", 1, 2, 2, 1))
sketch12.addConstraint(Sketcher.Constraint("Tangent", 2, 2, 0, 1))
sketch12.addConstraint(Sketcher.Constraint("Vertical", 1))
sketch12.addConstraint(Sketcher.Constraint("Equal", 0, 2))
sketch12.addConstraint(Sketcher.Constraint("PointOnObject", 0, 3, -1))
sketch12.addConstraint(Sketcher.Constraint("PointOnObject", 2, 2, -1))
sketch12.addConstraint(Sketcher.Constraint("Vertical", 2, 3, 0, 2))
sketch12.addConstraint(Sketcher.Constraint("Radius", 0, Q("11.5 mm")))
sketch12.addConstraint(Sketcher.Constraint("DistanceX", -1, 1, 0, 3, Q("16 mm")))
pocket9 = body.newObject("PartDesign::Pocket", "Pocket008")
pocket9.Profile = sketch12
pocket9.Type = "UpToFirst"

# Sketch on XZ plane
sketch13 = body.newObject("Sketcher::SketchObject", "Sketch012")
sketch13.AttachmentSupport = (doc.getObject("XZ_Plane"), [""])
sketch13.MapMode = "FlatFace"
sketch13.AttachmentOffset = App.Placement(App.Vector(0, 0, 53), App.Rotation())
sketch13.addGeometry(Part.LineSegment(App.Vector(16, -12, 0), App.Vector(16, 12, 0)), False)
sketch13.addGeometry(Part.ArcOfCircle(Part.Circle(App.Vector(16, 0, 0), App.Vector(0, 0, 1), 12), math.radians(90), math.radians(270)), False)
sketch13.addConstraint(Sketcher.Constraint("Coincident", 0, 1, 1, 2))
sketch13.addConstraint(Sketcher.Constraint("Coincident", 1, 1, 0, 2))
sketch13.addConstraint(Sketcher.Constraint("Vertical", 0))
sketch13.addConstraint(Sketcher.Constraint("PointOnObject", 1, 3, -1))
sketch13.addConstraint(Sketcher.Constraint("Vertical", 1, 3, 0, 1))
sketch13.addConstraint(Sketcher.Constraint("Radius", 1, Q("11.5 mm")))
sketch13.addConstraint(Sketcher.Constraint("DistanceX", -1, 1, 1, 3, Q("16 mm")))
pocket10 = body.newObject("PartDesign::Pocket", "Pocket009")
pocket10.Profile = sketch13
pocket10.Type = "UpToFirst"

# Sketch on XZ plane
sketch14 = body.newObject("Sketcher::SketchObject", "Sketch013")
sketch14.AttachmentSupport = (doc.getObject("XZ_Plane"), [""])
sketch14.MapMode = "FlatFace"
sketch14.AttachmentOffset = App.Placement(App.Vector(0, 0, 53), App.Rotation())
sketch14.addGeometry(Part.ArcOfCircle(Part.Circle(App.Vector(16, 0, 0), App.Vector(0, 0, 1), 11), math.radians(0), math.radians(90)), False)
sketch14.addGeometry(Part.LineSegment(App.Vector(16, 12, 0), App.Vector(16, -12, 0)), False)
sketch14.addGeometry(Part.ArcOfCircle(Part.Circle(App.Vector(16, 0, 0), App.Vector(0, 0, 1), 11), math.radians(-90), math.radians(0)), False)
sketch14.addConstraint(Sketcher.Constraint("Coincident", 0, 2, 1, 1))
sketch14.addConstraint(Sketcher.Constraint("Coincident", 1, 2, 2, 1))
sketch14.addConstraint(Sketcher.Constraint("Tangent", 2, 2, 0, 1))
sketch14.addConstraint(Sketcher.Constraint("Vertical", 1))
sketch14.addConstraint(Sketcher.Constraint("Equal", 0, 2))
sketch14.addConstraint(Sketcher.Constraint("PointOnObject", 0, 3, -1))
sketch14.addConstraint(Sketcher.Constraint("PointOnObject", 2, 2, -1))
sketch14.addConstraint(Sketcher.Constraint("Vertical", 2, 3, 0, 2))
sketch14.addConstraint(Sketcher.Constraint("Radius", 0, Q("11.5 mm")))
sketch14.addConstraint(Sketcher.Constraint("DistanceX", -1, 1, 0, 3, Q("16 mm")))
pocket11 = body.newObject("PartDesign::Pocket", "Pocket010")
pocket11.Profile = sketch14
pocket11.Type = "UpToFirst"

# Sketch on XZ plane
sketch15 = body.newObject("Sketcher::SketchObject", "Sketch014")
sketch15.AttachmentSupport = (doc.getObject("XZ_Plane"), [""])
sketch15.MapMode = "FlatFace"
sketch15.AttachmentOffset = App.Placement(App.Vector(0, 0, 53), App.Rotation())
sketch15.addGeometry(Part.LineSegment(App.Vector(16, -12, 0), App.Vector(16, 12, 0)), False)
sketch15.addGeometry(Part.ArcOfCircle(Part.Circle(App.Vector(16, 0, 0), App.Vector(0, 0, 1), 12), math.radians(90), math.radians(270)), False)
sketch15.addConstraint(Sketcher.Constraint("Coincident", 0, 1, 1, 2))
sketch15.addConstraint(Sketcher.Constraint("Coincident", 1, 1, 0, 2))
sketch15.addConstraint(Sketcher.Constraint("Vertical", 0))
sketch15.addConstraint(Sketcher.Constraint("PointOnObject", 1, 3, -1))
sketch15.addConstraint(Sketcher.Constraint("Vertical", 1, 3, 0, 1))
sketch15.addConstraint(Sketcher.Constraint("Radius", 1, Q("11.5 mm")))
sketch15.addConstraint(Sketcher.Constraint("DistanceX", -1, 1, 1, 3, Q("16 mm")))
pocket12 = body.newObject("PartDesign::Pocket", "Pocket011")
pocket12.Profile = sketch15
pocket12.Type = "UpToFirst"

# Sketch on XZ plane
sketch16 = body.newObject("Sketcher::SketchObject", "Sketch015")
sketch16.AttachmentSupport = (doc.getObject("XZ_Plane"), [""])
sketch16.MapMode = "FlatFace"
sketch16.AttachmentOffset = App.Placement(App.Vector(0, 0, 53), App.Rotation())
sketch16.addGeometry(Part.Circle(App.Vector(-4, 0, 0), App.Vector(0, 0, 1), 1.8), False)
sketch16.addConstraint(Sketcher.Constraint("PointOnObject", 0, 3, -1))
sketch16.addConstraint(Sketcher.Constraint("Diameter", 0, Q("3.5 mm")))
sketch16.addConstraint(Sketcher.Constraint("DistanceX", 0, 3, -1, 1, Q("4 mm")))
pocket13 = body.newObject("PartDesign::Pocket", "Pocket012")
pocket13.Profile = sketch16
pocket13.Type = "UpToFirst"

doc.recompute()
